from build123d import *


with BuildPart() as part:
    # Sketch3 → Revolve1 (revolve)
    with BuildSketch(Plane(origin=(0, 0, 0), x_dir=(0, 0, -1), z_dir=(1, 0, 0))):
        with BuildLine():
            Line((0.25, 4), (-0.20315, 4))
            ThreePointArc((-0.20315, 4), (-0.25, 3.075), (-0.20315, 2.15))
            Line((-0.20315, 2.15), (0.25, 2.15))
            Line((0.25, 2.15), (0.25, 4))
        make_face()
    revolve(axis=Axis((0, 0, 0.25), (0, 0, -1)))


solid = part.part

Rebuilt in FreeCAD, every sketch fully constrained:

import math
import FreeCAD as App
import Part
import Sketcher
from FreeCAD import Vector
Q = App.Units.Quantity

doc = App.newDocument("Part")
body = doc.addObject("PartDesign::Body", "Body")

# Sketch on YZ plane
sketch1 = body.newObject("Sketcher::SketchObject", "Sketch")
sketch1.AttachmentSupport = (doc.getObject("YZ_Plane"), [""])
sketch1.MapMode = "FlatFace"
sketch1.addGeometry([
    Part.LineSegment(Vector(4, -0.25, 0), Vector(4, 0.2, 0)),
    Part.ArcOfCircle(Part.Circle(Vector(3.08, -8.9, 0), Vector(0, 0, 1), 9.15), math.radians(84.2), math.radians(95.8)),
    Part.LineSegment(Vector(2.15, 0.2, 0), Vector(2.15, -0.25, 0)),
    Part.LineSegment(Vector(2.15, -0.25, 0), Vector(4, -0.25, 0)),
], False)
sketch1.addConstraint([
    Sketcher.Constraint("Coincident", 0, 2, 1, 1),
    Sketcher.Constraint("Coincident", 1, 2, 2, 1),
    Sketcher.Constraint("Coincident", 2, 2, 3, 1),
    Sketcher.Constraint("Coincident", 3, 2, 0, 1),
    Sketcher.Constraint("Vertical", 0),
    Sketcher.Constraint("Vertical", 2),
    Sketcher.Constraint("Horizontal", 3),
    Sketcher.Constraint("Horizontal", 0, 2, 1, 2),
    Sketcher.Constraint("DistanceX", -1, 1, 0, 2, Q("4 mm")),
    Sketcher.Constraint("DistanceX", 3, 1, 3, 2, Q("1.85 mm")),
    Sketcher.Constraint("DistanceY", 2, 2, -1, 1, Q("0.25 mm")),
    Sketcher.Constraint("Radius", 1, Q("9.154962 mm")),
    Sketcher.Constraint("DistanceY", 0, 1, 0, 2, Q("0.45315 mm")),
])
revolution = body.newObject("PartDesign::Revolution", "Revolution")
revolution.Profile = sketch1
revolution.ReferenceAxis = (sketch1, ["V_Axis"])
revolution.Angle = 360

doc.recompute()
